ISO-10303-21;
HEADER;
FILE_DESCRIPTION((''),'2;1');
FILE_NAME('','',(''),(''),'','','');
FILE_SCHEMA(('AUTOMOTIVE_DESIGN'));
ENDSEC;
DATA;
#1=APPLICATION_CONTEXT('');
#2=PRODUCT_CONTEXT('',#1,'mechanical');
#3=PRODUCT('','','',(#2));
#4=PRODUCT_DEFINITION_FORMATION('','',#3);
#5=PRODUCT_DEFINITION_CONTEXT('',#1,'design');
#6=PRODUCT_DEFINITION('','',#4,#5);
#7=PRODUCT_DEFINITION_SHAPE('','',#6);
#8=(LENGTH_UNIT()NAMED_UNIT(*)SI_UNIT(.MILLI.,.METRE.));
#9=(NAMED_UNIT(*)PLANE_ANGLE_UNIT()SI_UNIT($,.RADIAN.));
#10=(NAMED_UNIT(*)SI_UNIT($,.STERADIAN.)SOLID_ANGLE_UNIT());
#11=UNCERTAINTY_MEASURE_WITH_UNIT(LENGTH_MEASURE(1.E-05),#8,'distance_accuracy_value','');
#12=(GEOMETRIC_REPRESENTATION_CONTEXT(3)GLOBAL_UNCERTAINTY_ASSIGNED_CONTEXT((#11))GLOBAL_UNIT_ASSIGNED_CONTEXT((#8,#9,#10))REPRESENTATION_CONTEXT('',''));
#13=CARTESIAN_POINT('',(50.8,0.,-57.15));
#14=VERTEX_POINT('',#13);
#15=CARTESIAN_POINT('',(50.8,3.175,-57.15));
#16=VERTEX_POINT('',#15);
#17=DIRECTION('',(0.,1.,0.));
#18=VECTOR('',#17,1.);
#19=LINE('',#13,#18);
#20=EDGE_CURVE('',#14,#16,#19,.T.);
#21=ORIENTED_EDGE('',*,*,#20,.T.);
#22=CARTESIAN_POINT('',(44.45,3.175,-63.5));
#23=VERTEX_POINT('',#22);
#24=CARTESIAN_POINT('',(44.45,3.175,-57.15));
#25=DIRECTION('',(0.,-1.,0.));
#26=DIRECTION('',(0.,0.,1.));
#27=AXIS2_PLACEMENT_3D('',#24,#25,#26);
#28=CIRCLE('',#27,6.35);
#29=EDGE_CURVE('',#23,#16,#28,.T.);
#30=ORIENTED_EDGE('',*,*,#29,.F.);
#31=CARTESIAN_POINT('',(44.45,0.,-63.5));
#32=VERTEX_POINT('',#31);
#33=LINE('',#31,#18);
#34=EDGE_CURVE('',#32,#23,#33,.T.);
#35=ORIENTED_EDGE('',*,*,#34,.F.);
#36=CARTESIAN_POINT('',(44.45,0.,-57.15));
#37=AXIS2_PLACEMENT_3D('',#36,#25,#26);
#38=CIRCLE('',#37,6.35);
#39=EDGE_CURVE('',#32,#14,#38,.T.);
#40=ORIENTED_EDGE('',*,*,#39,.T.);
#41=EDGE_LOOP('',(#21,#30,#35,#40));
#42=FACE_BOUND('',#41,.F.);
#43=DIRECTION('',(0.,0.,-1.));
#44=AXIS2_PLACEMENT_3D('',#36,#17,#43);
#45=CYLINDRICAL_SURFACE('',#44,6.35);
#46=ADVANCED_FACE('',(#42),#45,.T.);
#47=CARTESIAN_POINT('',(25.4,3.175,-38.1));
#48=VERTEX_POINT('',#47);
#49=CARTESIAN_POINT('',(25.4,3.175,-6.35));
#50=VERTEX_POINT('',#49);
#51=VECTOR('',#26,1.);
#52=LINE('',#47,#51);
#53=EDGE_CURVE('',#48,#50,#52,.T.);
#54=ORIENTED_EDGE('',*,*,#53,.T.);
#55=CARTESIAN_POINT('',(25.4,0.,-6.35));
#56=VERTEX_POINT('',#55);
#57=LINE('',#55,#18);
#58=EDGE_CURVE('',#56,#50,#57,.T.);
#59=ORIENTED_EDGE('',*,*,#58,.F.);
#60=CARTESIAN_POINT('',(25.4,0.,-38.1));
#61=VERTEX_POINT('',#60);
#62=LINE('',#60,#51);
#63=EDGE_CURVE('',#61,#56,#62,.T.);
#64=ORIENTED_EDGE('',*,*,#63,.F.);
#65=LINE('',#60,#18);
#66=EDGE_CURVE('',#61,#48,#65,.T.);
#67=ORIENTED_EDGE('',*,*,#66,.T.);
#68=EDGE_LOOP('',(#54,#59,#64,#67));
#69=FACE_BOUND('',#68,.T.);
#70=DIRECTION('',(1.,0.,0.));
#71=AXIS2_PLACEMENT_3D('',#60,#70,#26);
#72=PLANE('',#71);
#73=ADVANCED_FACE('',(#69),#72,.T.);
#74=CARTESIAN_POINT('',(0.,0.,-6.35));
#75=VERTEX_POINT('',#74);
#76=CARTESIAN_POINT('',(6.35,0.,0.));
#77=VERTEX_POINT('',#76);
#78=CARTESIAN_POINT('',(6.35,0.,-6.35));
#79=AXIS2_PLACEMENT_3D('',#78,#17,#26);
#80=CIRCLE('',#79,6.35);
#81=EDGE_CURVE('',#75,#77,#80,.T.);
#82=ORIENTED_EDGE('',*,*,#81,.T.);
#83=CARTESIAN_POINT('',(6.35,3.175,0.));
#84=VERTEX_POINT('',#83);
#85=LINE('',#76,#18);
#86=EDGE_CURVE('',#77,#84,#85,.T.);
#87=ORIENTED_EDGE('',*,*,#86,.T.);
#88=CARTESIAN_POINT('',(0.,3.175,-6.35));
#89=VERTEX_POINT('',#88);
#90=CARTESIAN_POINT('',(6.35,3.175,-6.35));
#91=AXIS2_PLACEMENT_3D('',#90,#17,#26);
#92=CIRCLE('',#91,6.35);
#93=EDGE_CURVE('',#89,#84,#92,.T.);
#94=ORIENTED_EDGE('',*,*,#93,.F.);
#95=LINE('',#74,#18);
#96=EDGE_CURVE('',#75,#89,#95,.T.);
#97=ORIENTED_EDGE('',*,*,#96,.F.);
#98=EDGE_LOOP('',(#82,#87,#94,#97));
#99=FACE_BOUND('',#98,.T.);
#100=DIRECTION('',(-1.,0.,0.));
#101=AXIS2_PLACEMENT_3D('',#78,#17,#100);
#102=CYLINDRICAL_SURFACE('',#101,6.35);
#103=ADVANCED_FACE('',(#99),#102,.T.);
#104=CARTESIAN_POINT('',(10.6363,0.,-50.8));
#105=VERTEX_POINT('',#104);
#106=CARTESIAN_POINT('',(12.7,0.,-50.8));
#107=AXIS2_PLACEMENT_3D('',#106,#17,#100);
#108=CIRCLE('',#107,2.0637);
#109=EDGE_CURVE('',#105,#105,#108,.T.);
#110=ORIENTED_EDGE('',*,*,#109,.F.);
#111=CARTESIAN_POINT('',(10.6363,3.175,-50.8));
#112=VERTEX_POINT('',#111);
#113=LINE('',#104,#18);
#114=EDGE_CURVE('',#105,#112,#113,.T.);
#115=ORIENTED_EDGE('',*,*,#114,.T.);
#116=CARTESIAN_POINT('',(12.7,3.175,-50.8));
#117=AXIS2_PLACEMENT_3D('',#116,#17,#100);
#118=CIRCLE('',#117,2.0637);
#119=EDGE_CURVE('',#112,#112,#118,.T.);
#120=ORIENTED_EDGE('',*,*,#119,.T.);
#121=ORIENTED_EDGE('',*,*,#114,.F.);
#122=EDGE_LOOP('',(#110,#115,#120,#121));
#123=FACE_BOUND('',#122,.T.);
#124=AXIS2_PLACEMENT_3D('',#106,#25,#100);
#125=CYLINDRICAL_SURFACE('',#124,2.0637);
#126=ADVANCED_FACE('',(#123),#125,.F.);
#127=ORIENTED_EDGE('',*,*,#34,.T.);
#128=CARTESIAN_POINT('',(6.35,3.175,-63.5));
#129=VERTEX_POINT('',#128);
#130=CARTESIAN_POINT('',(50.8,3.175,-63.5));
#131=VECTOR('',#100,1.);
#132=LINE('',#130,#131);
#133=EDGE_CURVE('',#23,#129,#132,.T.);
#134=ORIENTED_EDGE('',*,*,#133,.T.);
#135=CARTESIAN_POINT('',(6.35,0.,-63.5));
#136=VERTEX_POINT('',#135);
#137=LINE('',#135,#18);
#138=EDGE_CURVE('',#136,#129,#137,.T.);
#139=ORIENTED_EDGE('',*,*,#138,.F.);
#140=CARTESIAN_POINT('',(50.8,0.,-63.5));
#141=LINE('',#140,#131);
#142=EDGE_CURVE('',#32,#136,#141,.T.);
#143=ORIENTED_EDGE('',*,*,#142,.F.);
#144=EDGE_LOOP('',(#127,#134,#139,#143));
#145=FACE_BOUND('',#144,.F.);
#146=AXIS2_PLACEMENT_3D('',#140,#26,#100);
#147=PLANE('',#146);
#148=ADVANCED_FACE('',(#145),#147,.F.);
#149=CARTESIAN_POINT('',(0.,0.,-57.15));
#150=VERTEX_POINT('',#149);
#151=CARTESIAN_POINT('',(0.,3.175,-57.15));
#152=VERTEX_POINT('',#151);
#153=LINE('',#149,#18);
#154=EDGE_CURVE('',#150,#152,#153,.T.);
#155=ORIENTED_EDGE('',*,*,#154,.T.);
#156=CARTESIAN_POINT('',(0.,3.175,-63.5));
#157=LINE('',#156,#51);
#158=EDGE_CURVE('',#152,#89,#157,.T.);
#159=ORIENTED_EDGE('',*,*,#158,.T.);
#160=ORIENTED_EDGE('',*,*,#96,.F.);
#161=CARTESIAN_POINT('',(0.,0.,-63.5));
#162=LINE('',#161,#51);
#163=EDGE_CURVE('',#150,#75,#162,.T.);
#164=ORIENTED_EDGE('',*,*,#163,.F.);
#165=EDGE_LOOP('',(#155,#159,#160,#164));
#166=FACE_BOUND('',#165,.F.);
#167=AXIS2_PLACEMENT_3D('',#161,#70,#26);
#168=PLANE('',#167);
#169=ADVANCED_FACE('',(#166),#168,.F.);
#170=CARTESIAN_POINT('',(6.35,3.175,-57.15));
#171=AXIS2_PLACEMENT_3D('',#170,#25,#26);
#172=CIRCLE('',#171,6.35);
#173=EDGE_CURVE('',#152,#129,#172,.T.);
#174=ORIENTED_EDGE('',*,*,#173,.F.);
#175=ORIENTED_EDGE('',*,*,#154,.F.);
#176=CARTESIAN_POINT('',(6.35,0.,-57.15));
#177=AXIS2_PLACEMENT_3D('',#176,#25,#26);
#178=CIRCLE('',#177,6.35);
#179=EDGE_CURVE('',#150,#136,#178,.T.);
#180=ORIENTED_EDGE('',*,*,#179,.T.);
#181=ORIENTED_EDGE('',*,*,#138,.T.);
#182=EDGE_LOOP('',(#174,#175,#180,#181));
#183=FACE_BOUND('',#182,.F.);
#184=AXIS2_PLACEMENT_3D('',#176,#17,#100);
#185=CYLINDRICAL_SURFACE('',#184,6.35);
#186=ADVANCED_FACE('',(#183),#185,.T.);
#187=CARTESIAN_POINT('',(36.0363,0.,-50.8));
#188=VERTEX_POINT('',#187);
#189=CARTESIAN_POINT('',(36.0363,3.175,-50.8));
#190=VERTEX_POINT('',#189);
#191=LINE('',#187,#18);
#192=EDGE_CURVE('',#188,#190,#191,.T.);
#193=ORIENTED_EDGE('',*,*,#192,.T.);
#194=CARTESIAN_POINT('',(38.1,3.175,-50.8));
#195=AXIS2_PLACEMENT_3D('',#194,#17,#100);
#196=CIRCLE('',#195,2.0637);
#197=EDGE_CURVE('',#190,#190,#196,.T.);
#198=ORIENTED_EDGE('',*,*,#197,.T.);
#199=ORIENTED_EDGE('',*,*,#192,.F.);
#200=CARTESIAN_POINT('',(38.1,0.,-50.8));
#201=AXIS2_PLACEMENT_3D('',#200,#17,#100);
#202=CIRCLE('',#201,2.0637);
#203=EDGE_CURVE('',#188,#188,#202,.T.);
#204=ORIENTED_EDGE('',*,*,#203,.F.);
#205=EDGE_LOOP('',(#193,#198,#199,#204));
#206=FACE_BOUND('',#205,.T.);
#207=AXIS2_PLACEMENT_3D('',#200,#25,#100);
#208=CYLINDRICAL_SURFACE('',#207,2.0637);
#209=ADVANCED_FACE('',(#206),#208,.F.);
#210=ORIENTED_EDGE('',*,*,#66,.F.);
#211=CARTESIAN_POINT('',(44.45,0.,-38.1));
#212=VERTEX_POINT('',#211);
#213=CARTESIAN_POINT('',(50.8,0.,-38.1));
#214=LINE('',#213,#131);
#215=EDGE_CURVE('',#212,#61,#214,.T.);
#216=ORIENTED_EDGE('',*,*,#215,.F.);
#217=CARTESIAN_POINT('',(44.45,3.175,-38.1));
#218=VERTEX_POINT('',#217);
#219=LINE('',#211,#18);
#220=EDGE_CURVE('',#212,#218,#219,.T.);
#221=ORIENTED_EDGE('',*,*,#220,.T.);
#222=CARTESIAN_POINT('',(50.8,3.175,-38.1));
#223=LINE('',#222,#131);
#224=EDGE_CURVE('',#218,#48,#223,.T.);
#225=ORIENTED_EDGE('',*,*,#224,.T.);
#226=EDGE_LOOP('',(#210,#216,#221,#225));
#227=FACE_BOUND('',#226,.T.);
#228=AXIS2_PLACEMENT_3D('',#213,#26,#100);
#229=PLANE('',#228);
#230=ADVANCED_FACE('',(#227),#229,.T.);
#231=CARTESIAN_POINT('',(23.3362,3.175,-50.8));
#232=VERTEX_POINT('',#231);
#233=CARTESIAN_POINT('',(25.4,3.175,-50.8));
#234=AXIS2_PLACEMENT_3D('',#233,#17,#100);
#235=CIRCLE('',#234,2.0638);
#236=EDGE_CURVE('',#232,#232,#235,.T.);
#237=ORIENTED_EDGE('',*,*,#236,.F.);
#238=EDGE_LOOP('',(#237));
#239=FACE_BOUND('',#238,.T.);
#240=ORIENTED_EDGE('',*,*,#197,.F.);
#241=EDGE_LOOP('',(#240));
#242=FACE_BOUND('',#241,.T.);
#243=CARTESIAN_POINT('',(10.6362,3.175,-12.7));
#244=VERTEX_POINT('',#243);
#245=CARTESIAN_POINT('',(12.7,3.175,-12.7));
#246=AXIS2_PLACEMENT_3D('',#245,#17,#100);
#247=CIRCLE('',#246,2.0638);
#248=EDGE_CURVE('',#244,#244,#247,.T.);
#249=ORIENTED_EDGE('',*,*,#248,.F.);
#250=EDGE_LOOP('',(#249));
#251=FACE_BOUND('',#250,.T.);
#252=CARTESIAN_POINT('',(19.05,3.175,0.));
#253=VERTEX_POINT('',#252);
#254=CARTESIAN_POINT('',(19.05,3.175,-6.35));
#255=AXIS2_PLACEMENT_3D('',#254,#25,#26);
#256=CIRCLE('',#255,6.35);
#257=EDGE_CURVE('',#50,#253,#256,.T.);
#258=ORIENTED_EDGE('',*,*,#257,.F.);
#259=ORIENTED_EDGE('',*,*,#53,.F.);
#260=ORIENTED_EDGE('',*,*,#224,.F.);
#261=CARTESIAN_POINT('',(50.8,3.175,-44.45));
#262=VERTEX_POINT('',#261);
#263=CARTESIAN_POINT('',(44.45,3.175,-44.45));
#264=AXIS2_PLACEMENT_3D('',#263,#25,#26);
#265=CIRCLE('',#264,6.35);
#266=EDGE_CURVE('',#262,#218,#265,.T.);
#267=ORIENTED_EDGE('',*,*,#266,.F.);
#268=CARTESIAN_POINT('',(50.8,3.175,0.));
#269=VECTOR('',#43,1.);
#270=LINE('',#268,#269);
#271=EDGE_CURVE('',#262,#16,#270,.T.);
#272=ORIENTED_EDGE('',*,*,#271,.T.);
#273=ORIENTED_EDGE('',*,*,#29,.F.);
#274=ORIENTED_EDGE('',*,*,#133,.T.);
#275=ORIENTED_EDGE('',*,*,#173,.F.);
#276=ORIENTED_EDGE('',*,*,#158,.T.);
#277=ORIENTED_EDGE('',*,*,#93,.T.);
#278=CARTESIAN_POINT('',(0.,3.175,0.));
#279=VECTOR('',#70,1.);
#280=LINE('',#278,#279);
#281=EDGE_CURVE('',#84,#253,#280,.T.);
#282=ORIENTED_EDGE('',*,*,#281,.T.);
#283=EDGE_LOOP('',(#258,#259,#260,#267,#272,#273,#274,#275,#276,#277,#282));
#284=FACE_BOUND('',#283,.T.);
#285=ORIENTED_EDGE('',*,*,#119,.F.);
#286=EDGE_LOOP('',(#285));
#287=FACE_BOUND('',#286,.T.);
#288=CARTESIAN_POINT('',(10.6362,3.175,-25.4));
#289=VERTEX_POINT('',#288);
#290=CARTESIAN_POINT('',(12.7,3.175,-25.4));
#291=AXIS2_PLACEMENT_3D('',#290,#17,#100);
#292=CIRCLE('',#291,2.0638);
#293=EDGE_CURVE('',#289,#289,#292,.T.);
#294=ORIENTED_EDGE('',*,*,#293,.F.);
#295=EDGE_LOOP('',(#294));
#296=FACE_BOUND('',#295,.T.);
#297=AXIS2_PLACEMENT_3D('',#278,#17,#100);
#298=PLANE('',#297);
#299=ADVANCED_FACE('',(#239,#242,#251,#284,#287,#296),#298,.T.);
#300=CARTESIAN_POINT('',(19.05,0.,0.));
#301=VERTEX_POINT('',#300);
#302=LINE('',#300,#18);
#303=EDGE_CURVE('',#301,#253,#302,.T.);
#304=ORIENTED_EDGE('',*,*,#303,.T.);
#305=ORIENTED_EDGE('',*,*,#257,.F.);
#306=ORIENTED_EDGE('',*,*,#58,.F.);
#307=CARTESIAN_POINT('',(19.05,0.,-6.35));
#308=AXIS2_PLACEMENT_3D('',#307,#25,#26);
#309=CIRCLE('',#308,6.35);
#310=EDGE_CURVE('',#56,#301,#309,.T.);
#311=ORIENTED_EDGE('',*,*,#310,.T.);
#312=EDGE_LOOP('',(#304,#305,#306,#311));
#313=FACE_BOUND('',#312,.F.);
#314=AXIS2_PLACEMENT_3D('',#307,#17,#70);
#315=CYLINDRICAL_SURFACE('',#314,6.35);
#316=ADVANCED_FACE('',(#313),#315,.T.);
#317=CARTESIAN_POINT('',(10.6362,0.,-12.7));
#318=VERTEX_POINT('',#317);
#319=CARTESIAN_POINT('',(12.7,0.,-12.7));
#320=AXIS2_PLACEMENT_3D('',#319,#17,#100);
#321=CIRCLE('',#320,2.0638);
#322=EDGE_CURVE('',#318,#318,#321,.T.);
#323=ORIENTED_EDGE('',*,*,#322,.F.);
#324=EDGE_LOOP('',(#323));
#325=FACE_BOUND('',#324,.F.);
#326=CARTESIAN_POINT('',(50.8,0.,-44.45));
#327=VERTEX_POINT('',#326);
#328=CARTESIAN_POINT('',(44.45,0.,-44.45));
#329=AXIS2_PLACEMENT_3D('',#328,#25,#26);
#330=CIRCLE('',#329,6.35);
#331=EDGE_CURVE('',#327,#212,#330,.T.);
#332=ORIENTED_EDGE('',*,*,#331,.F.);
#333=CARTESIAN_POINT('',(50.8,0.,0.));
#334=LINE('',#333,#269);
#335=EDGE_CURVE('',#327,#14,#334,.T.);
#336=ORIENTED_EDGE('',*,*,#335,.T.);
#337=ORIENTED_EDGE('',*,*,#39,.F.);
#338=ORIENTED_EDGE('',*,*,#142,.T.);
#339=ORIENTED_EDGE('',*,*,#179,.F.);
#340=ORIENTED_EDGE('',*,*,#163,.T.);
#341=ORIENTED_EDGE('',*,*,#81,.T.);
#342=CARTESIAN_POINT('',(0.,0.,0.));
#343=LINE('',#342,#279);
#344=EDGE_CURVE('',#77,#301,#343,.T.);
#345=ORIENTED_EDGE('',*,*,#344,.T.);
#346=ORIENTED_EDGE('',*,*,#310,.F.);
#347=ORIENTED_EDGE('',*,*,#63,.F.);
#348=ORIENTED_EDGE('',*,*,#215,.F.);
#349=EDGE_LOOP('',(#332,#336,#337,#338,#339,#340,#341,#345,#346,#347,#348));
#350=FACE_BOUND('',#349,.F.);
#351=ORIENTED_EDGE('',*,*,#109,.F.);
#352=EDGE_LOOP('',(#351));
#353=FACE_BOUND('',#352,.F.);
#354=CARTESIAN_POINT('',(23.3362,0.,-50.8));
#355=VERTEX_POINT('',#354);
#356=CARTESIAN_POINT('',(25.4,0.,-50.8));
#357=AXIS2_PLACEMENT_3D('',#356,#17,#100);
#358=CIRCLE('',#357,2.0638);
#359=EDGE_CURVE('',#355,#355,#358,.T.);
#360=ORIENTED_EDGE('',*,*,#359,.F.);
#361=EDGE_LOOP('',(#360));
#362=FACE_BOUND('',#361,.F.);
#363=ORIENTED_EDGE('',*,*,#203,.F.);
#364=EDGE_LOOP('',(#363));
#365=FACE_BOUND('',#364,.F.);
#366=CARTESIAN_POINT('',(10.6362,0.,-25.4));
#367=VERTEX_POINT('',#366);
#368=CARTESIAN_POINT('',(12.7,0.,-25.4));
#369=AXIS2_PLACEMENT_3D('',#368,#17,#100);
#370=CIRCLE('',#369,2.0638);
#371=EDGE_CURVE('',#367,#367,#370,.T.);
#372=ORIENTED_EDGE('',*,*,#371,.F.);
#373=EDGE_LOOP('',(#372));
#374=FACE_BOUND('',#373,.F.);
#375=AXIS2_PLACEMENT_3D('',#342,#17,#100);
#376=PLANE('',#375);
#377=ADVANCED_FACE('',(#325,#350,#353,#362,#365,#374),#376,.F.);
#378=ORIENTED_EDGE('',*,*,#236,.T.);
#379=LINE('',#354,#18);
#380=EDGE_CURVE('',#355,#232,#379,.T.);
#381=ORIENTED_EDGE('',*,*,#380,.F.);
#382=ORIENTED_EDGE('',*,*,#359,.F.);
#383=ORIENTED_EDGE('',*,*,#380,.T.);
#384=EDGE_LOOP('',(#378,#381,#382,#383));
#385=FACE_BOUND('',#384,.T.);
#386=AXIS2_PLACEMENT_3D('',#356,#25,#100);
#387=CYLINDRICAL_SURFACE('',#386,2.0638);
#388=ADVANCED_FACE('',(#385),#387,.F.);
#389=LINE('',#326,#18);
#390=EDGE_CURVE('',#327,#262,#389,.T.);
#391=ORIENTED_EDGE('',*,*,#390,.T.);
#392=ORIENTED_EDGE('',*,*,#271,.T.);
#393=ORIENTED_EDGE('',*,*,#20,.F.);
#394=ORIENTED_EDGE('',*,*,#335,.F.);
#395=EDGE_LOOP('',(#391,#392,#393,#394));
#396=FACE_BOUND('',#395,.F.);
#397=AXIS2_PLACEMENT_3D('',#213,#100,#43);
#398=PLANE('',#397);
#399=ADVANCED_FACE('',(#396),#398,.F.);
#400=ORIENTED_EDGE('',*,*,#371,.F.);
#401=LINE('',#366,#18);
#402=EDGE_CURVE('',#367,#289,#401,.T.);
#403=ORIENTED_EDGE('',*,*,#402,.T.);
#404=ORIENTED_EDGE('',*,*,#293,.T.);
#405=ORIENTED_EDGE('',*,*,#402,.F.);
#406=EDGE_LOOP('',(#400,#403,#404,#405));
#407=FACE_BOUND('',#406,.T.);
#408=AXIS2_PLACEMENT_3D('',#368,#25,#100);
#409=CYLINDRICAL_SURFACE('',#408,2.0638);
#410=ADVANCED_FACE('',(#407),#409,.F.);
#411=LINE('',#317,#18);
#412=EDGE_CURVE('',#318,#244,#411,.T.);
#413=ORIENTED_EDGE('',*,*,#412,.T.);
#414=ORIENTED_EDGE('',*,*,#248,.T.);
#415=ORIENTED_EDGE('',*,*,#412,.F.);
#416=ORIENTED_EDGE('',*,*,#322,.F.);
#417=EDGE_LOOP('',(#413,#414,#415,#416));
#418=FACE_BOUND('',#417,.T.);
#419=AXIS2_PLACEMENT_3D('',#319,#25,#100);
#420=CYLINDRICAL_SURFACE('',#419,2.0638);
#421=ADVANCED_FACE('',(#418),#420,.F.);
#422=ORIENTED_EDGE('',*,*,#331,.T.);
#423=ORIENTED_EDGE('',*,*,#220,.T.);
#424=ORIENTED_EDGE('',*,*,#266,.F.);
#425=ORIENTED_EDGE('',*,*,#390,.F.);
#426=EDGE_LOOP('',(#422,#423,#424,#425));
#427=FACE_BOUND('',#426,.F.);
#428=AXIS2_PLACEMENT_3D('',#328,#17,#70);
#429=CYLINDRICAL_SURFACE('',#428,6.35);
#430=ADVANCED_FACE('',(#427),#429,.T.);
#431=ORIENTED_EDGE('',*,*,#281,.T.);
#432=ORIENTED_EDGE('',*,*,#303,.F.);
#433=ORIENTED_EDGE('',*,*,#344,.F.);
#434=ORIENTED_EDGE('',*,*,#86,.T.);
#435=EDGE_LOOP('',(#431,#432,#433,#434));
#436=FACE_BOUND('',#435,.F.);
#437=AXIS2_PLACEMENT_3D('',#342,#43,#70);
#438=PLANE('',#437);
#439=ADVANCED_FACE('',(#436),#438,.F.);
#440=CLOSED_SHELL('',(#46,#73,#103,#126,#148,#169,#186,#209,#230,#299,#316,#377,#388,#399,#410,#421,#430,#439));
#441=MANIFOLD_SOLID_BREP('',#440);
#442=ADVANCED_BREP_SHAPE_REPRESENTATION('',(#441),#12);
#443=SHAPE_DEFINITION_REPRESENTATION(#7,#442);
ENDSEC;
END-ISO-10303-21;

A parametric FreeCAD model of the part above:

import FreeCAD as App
import Part
import Sketcher

V = App.Vector
Q = App.Units.Quantity


def edges_at(feature, points):
    """Names of the edges that pass closest to the given points."""
    edges = feature.Shape.Edges
    near = lambda p: min(range(len(edges)), key=lambda i: edges[i].distToShape(Part.Vertex(*p))[0])
    return sorted({f"Edge{near(p) + 1}" for p in points})


def add_polygon(sketch, points):
    """Adds a closed chain of lines whose ends are joined by coincident constraints."""
    first, n = sketch.GeometryCount, len(points)
    for a, b in zip(points, points[1:] + points[:1]):
        sketch.addGeometry(Part.LineSegment(App.Vector(*a, 0), App.Vector(*b, 0)), False)
    for i in range(n):
        sketch.addConstraint(Sketcher.Constraint("Coincident", first + i, 2, first + (i + 1) % n, 1))

doc = App.newDocument("Part")
params = doc.addObject("Spreadsheet::Sheet", "Params")
for row, (alias, value) in enumerate([
    ("sketch1_width", "1 in"),
    ("sketch1_height", "2.5 in"),
    ("pad1_length", "0.125 in"),
    ("fillet_radius", "0.25 in"),
], start=1):
    params.set(f"A{row}", alias)
    params.set(f"B{row}", "=" + value)
    params.setAlias(f"B{row}", alias)

body = doc.addObject("PartDesign::Body", "Body")

# Sketch on XZ plane
sketch1 = body.newObject("Sketcher::SketchObject", "Sketch")
sketch1.AttachmentSupport = (doc.getObject("XZ_Plane"), [""])
sketch1.MapMode = "FlatFace"
add_polygon(sketch1, [(0, -63.5), (0, 0), (25.4, 0), (25.4, -38.1), (50.8, -38.1), (50.8, -63.5)])  # lines 0-5
sketch1.addGeometry(Part.Circle(V(38.1, -50.8, 0), V(0, 0, 1), 2.1), False)  # 6
sketch1.addGeometry(Part.Circle(V(25.4, -50.8, 0), V(0, 0, 1), 2.1), False)  # 7
sketch1.addGeometry(Part.Circle(V(12.7, -50.8, 0), V(0, 0, 1), 2.1), False)  # 8
sketch1.addGeometry(Part.Circle(V(12.7, -25.4, 0), V(0, 0, 1), 2.1), False)  # 9
sketch1.addGeometry(Part.Circle(V(12.7, -12.7, 0), V(0, 0, 1), 2.1), False)  # 10
sketch1.addConstraint([
    Sketcher.Constraint("Vertical", 0),
    Sketcher.Constraint("Horizontal", 1),
    Sketcher.Constraint("Vertical", 2),
    Sketcher.Constraint("Horizontal", 3),
    Sketcher.Constraint("Vertical", 4),
    Sketcher.Constraint("Horizontal", 5),
    Sketcher.Constraint("Coincident", 0, 2, -1, 1),
    Sketcher.Constraint("Equal", 6, 7),
    Sketcher.Constraint("Equal", 7, 8),
    Sketcher.Constraint("Equal", 8, 9),
    Sketcher.Constraint("Equal", 9, 10),
    Sketcher.Constraint("Horizontal", 6, 3, 7, 3),
    Sketcher.Constraint("Horizontal", 7, 3, 8, 3),
    Sketcher.Constraint("Vertical", 8, 3, 9, 3),
    Sketcher.Constraint("Vertical", 9, 3, 10, 3),
    Sketcher.Constraint("Vertical", 7, 3, 1, 2),
    Sketcher.Constraint("Equal", 1, 3),
    Sketcher.Constraint("Equal", 3, 4),
    Sketcher.Constraint("DistanceX", 1, 1, 1, 2, Q("1 in")),
    Sketcher.Constraint("DistanceY", 0, 1, 0, 2, Q("2.5 in")),
    Sketcher.Constraint("DistanceY", 6, 3, -1, 1, Q("2 in")),
    Sketcher.Constraint("DistanceY", 9, 3, -1, 1, Q("1 in")),
    Sketcher.Constraint("DistanceX", 8, 3, 6, 3, Q("1 in")),
    Sketcher.Constraint("DistanceY", 2, 2, 10, 3, Q("1 in")),
    Sketcher.Constraint("Diameter", 6, Q("0.1625 in")),
    Sketcher.Constraint("DistanceX", -1, 1, 8, 3, Q("0.5 in")),
])
sketch1.setExpression("Constraints[24]", "Params.sketch1_width")
sketch1.setExpression("Constraints[25]", "Params.sketch1_height")
pad1 = body.newObject("PartDesign::Pad", "Pad")
pad1.Profile = sketch1
pad1.setExpression("Length", "Params.pad1_length")
pad1.Reversed = True
doc.recompute()

fillet = body.newObject("PartDesign::Fillet", "Fillet")
fillet.Base = (pad1, edges_at(pad1, [
    (50.8, 1.587, -38.1),
    (25.4, 1.587, 0),
    (0, 1.587, 0),
    (0, 1.587, -63.5),
    (50.8, 1.587, -63.5),
]))
fillet.setExpression("Radius", "Params.fillet_radius")

doc.recompute()
